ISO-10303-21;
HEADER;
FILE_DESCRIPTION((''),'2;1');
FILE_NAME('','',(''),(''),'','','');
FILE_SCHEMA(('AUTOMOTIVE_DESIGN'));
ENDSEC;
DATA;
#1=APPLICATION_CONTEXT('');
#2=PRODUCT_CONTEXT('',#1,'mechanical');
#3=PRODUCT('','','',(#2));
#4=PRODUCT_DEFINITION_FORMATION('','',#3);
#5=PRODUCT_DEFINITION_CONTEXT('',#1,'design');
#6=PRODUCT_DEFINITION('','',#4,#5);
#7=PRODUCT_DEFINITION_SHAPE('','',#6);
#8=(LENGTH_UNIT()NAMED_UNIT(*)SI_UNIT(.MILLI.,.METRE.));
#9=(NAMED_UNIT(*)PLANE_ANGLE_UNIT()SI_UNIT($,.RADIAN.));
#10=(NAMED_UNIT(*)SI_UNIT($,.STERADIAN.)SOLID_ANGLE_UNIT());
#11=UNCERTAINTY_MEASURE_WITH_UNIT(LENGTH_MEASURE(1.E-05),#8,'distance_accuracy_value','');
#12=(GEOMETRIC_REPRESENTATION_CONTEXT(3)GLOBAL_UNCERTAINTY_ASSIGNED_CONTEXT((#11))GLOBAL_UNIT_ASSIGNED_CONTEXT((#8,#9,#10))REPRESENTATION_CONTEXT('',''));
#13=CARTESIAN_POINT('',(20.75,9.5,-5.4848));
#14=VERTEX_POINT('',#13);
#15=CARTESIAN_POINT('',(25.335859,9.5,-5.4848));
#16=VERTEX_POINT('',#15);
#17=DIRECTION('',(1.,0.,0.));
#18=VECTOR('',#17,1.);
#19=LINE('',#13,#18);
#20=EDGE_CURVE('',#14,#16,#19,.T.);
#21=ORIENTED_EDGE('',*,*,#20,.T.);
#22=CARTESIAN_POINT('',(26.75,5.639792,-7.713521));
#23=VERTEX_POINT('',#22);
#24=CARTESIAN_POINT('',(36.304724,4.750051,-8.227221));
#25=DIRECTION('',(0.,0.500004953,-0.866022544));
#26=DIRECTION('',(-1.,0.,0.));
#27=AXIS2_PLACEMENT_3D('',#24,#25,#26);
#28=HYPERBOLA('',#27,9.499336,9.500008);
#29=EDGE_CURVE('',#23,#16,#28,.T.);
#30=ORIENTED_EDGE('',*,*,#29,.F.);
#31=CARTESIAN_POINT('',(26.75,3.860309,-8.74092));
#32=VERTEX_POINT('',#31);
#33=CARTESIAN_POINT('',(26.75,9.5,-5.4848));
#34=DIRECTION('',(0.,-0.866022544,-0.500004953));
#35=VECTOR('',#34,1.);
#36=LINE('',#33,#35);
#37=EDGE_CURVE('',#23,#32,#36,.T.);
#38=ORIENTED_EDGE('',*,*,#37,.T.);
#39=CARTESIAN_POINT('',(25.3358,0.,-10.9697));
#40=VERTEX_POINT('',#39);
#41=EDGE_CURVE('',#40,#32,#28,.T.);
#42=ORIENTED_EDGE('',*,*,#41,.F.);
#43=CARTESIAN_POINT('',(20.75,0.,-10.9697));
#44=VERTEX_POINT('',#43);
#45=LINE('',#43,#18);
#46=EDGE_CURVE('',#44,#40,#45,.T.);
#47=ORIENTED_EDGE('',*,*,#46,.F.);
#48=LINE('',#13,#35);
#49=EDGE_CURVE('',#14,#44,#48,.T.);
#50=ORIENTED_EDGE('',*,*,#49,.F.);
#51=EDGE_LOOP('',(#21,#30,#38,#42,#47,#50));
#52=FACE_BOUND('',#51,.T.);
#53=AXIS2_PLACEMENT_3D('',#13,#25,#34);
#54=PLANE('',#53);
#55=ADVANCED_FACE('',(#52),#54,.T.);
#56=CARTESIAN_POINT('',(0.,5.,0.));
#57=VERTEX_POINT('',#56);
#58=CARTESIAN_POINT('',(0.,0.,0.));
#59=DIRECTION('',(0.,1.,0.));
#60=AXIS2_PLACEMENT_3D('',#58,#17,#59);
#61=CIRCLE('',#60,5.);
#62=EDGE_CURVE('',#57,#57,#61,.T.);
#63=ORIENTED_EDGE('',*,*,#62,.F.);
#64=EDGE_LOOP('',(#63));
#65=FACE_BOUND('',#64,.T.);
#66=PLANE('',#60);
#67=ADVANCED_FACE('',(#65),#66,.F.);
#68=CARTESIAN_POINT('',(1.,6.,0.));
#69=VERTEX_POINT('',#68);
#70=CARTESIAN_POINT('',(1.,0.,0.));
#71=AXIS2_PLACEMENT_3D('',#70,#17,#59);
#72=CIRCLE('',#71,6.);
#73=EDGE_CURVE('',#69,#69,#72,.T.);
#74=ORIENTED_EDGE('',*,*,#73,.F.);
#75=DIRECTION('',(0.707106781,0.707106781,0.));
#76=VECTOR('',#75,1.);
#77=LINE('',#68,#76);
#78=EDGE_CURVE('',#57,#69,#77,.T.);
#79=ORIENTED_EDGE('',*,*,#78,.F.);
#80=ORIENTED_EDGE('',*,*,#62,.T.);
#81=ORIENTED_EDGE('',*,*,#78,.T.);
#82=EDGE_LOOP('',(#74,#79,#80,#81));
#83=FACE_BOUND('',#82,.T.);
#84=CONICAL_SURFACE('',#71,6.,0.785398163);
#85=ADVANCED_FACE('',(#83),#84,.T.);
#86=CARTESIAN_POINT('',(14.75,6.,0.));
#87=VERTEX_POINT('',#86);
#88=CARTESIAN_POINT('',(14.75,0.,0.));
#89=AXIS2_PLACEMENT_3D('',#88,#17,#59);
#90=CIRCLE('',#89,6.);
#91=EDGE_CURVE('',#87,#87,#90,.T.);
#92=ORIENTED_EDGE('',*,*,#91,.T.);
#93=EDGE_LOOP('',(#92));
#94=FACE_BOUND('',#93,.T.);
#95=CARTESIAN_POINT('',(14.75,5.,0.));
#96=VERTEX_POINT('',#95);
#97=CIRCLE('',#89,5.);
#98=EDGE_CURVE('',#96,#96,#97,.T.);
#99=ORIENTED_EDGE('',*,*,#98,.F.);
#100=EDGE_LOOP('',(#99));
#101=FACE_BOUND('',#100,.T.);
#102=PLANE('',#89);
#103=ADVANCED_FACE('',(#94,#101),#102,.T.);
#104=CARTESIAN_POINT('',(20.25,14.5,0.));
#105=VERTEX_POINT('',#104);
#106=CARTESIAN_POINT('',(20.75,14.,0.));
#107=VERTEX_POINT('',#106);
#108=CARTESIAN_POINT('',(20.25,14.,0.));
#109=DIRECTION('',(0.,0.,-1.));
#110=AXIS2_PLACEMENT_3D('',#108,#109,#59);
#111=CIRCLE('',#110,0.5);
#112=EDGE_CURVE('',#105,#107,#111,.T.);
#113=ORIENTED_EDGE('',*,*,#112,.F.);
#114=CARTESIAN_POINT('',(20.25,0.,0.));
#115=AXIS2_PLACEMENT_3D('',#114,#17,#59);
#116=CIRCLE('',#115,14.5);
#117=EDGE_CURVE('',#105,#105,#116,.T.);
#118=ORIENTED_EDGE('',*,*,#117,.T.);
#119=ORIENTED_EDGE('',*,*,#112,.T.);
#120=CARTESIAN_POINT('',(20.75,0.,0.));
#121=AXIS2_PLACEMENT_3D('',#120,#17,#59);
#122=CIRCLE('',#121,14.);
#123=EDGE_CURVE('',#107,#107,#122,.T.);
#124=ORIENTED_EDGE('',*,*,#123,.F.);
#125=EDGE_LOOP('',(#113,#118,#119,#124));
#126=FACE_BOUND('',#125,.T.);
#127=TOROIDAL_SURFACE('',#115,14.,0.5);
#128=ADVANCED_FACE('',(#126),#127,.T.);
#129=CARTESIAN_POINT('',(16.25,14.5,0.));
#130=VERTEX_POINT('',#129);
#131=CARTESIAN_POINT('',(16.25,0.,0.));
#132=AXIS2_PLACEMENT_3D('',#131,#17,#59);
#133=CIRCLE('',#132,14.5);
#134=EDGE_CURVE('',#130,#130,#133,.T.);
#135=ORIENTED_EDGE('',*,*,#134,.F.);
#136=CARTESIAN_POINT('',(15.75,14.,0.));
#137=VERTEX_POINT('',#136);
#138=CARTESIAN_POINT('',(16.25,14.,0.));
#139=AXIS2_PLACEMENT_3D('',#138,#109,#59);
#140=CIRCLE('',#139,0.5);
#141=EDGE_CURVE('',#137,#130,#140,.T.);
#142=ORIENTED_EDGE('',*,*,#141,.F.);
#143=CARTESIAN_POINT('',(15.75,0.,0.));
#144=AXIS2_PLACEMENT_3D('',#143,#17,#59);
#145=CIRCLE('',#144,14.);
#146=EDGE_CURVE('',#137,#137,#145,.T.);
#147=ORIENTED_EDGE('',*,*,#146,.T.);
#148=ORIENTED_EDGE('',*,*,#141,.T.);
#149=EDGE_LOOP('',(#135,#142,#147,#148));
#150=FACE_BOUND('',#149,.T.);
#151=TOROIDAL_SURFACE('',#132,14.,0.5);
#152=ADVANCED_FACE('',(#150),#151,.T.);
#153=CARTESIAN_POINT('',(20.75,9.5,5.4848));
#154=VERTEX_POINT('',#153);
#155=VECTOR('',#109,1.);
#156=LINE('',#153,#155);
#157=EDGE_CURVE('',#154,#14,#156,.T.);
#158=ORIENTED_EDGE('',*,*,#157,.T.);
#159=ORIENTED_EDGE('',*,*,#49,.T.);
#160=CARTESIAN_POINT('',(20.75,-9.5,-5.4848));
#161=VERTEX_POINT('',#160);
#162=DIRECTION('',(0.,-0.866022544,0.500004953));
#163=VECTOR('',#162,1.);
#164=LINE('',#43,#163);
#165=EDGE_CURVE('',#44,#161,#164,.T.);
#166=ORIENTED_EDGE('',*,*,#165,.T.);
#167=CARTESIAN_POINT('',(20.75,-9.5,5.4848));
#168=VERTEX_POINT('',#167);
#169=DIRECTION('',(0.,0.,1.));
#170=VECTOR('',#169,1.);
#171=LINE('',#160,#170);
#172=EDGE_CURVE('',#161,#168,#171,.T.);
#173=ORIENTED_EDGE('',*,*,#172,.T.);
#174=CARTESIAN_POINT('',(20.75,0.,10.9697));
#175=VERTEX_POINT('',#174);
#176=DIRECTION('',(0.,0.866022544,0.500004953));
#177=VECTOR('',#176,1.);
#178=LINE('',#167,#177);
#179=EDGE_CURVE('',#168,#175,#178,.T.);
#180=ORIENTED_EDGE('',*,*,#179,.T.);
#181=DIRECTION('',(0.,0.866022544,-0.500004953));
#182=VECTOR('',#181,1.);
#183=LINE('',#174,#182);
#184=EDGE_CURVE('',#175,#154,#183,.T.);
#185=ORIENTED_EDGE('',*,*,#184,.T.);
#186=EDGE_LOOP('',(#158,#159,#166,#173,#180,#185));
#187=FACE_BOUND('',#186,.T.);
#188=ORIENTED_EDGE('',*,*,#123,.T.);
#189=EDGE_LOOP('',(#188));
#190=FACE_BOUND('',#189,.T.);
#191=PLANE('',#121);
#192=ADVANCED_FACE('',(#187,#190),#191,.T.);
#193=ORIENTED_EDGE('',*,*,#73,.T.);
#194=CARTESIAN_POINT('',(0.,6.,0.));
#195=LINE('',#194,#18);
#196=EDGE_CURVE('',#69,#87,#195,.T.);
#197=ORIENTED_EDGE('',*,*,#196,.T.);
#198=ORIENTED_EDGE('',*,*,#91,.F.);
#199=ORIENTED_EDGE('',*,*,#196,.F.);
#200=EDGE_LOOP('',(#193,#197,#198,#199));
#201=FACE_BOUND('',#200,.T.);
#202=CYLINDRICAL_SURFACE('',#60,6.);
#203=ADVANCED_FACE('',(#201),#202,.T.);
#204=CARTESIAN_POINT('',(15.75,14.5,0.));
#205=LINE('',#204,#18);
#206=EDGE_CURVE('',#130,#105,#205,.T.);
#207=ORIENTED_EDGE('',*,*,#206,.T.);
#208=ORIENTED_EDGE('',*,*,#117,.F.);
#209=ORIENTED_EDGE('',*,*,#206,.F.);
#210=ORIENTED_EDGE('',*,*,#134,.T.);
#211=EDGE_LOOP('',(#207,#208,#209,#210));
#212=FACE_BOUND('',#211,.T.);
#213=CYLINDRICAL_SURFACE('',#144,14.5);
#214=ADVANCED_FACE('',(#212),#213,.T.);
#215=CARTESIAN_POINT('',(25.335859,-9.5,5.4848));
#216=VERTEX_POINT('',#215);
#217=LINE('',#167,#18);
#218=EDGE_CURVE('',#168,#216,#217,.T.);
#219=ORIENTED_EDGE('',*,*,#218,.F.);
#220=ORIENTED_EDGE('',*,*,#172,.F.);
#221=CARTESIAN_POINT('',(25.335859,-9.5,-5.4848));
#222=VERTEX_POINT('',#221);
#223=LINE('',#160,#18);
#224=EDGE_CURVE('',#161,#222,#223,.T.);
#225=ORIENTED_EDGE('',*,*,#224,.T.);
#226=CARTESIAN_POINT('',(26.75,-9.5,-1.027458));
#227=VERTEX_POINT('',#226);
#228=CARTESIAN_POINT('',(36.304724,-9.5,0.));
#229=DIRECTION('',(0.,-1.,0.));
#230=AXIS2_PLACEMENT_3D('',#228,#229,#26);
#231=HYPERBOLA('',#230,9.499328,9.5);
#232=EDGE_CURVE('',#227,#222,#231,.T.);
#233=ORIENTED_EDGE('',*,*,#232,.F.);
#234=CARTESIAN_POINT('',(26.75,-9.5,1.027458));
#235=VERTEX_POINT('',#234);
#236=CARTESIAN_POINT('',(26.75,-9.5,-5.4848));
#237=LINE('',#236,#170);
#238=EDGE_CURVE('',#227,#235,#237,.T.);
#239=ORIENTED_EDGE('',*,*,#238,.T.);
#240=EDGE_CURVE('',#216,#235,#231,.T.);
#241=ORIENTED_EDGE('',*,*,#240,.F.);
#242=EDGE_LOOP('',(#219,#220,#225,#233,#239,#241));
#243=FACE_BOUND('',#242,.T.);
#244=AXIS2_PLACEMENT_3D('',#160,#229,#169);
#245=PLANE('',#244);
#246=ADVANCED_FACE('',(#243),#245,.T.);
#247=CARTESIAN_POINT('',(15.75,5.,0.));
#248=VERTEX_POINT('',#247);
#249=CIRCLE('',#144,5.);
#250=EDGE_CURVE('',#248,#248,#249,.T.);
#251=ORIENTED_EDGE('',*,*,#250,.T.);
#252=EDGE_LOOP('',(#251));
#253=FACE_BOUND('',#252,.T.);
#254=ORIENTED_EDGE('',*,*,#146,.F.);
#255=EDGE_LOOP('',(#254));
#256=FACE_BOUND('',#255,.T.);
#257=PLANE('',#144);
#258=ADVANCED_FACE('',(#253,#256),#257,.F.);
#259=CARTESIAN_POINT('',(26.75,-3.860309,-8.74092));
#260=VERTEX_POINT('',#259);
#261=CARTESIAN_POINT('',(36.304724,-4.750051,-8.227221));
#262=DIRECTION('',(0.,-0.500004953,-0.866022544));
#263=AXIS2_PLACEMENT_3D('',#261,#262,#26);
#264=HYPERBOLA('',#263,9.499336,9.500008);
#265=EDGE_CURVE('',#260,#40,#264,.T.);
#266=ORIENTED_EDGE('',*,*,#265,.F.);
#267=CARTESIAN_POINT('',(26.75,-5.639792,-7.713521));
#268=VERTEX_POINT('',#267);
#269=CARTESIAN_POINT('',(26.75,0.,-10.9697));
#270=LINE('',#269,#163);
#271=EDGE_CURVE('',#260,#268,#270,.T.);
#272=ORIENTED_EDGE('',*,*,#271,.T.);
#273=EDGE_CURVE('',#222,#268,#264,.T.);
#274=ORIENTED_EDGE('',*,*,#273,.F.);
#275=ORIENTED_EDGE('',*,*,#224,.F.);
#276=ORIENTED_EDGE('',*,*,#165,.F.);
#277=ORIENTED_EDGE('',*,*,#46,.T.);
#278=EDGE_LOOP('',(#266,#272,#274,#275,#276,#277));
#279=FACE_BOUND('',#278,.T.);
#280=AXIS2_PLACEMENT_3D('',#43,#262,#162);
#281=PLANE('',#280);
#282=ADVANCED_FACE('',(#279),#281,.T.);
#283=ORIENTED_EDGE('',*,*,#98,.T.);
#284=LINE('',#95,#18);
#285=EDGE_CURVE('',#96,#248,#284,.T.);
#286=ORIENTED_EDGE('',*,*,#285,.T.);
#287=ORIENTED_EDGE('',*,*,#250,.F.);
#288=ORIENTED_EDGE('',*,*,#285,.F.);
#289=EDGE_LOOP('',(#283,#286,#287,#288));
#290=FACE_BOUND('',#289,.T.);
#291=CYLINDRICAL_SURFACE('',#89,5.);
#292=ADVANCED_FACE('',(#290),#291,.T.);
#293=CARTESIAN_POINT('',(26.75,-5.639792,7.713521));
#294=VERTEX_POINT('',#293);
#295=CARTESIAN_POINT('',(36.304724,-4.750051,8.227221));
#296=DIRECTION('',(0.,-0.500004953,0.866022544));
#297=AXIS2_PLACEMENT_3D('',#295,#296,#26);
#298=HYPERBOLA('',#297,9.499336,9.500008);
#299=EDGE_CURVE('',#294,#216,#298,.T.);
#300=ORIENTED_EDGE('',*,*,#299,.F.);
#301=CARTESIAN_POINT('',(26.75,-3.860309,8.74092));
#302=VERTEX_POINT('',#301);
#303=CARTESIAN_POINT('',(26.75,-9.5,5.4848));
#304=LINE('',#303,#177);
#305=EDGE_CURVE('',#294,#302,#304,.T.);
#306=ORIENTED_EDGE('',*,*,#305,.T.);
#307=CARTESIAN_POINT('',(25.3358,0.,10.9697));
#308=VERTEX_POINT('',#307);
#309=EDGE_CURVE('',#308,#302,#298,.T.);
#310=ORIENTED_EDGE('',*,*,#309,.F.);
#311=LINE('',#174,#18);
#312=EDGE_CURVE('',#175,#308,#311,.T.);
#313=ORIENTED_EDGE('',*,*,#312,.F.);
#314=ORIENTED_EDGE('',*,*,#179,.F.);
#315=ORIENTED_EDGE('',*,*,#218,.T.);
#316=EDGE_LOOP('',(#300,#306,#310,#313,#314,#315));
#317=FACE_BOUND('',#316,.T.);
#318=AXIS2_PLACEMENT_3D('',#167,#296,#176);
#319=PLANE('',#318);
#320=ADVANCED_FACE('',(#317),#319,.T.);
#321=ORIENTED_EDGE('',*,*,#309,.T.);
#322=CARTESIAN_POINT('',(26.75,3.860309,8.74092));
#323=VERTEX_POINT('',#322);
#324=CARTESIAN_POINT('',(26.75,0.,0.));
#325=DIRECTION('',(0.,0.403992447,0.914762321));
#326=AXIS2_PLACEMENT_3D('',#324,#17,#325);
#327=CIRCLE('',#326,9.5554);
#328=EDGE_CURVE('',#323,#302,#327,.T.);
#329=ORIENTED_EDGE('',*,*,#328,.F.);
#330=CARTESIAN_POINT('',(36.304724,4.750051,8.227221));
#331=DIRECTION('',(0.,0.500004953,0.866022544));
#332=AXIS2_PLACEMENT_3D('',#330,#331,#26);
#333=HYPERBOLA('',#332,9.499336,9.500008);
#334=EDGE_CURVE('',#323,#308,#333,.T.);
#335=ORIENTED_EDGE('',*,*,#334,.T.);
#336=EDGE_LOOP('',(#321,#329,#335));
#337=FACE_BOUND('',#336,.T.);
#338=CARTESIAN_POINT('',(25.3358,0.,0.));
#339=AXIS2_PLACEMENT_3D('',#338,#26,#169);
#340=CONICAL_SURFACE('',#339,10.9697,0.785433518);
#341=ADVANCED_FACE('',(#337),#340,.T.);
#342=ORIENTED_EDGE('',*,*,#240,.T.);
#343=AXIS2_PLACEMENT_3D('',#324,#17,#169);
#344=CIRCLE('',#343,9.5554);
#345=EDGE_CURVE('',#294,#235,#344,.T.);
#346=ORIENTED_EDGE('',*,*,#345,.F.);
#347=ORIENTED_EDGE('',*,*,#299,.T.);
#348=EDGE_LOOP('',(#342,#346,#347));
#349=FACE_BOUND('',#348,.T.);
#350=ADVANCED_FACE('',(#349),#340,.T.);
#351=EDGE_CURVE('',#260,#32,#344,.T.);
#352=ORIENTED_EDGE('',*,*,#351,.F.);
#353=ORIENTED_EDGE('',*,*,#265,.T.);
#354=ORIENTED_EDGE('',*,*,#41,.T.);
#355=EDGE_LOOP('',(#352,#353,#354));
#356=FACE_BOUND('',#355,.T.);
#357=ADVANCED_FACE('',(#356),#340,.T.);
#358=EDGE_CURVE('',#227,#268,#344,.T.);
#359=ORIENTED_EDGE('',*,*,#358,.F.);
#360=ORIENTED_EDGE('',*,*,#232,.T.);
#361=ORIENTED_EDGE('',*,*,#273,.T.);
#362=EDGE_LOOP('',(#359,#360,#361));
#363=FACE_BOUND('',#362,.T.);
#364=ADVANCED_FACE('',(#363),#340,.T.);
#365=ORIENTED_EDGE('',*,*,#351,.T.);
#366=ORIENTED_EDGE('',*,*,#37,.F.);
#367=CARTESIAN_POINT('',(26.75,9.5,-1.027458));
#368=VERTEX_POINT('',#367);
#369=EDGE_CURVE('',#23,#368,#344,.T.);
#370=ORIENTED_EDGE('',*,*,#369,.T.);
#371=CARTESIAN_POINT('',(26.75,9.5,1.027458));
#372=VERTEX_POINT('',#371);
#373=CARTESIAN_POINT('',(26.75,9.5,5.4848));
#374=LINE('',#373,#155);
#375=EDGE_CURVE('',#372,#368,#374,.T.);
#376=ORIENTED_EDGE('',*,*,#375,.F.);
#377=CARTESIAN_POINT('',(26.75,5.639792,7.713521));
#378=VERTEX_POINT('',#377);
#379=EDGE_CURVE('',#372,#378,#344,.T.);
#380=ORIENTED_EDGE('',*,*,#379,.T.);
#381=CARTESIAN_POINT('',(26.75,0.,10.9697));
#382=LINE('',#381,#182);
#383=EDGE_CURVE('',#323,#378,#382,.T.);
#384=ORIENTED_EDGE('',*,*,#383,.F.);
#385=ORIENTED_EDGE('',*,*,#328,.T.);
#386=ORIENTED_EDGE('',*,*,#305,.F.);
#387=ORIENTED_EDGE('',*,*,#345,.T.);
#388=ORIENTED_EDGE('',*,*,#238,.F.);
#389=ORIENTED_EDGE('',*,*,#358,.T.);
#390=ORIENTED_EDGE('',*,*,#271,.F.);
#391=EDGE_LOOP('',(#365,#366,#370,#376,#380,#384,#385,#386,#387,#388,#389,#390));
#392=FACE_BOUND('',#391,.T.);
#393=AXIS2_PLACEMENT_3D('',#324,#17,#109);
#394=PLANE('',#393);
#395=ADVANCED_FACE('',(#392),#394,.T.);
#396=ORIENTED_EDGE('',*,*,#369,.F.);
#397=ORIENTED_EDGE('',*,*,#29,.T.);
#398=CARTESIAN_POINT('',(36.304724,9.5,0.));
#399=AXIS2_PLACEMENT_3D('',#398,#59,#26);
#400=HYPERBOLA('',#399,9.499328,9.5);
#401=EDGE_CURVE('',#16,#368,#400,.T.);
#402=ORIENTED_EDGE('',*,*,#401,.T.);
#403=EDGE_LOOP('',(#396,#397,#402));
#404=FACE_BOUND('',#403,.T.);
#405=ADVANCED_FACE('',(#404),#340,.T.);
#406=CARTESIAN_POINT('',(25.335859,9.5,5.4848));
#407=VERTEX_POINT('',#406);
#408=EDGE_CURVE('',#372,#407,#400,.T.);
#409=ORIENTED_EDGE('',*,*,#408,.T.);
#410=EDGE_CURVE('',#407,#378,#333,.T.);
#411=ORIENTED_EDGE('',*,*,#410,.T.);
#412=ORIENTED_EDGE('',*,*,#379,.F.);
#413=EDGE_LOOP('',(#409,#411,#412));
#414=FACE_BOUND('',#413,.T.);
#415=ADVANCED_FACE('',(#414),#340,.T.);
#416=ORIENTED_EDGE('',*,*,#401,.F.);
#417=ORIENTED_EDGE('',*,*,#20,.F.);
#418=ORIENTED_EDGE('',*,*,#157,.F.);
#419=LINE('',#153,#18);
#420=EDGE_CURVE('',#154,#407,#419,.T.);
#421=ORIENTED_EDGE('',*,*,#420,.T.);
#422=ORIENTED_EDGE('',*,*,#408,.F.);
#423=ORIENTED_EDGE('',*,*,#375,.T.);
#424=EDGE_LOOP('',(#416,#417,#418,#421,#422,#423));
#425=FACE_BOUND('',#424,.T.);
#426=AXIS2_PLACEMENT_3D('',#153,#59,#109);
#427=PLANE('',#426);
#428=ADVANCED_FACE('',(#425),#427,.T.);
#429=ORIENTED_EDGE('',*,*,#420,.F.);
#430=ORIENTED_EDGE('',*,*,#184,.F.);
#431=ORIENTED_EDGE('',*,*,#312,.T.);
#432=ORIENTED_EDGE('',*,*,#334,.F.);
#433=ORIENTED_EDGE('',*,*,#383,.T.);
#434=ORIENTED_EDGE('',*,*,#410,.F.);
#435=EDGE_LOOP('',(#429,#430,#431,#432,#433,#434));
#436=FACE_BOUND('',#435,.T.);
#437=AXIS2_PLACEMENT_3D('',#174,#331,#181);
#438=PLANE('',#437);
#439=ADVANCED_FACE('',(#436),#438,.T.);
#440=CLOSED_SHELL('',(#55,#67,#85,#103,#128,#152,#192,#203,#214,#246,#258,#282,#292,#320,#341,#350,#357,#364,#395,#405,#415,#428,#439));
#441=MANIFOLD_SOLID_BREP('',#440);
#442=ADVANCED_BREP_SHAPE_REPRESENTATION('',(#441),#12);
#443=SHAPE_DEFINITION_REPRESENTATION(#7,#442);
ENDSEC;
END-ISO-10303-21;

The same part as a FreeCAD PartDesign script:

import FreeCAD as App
import Part
import Sketcher

V = App.Vector
Q = App.Units.Quantity


def edges_at(feature, points):
    """Names of the edges that pass closest to the given points."""
    edges = feature.Shape.Edges
    near = lambda p: min(range(len(edges)), key=lambda i: edges[i].distToShape(Part.Vertex(*p))[0])
    return sorted({f"Edge{near(p) + 1}" for p in points})


def add_polygon(sketch, points):
    """Adds a closed chain of lines whose ends are joined by coincident constraints."""
    first, n = sketch.GeometryCount, len(points)
    for a, b in zip(points, points[1:] + points[:1]):
        sketch.addGeometry(Part.LineSegment(App.Vector(*a, 0), App.Vector(*b, 0)), False)
    for i in range(n):
        sketch.addConstraint(Sketcher.Constraint("Coincident", first + i, 2, first + (i + 1) % n, 1))

doc = App.newDocument("Part")
params = doc.addObject("Spreadsheet::Sheet", "Params")
for row, (alias, value) in enumerate([
    ("sketch1_width", "5 mm"),
    ("sketch1_width2", "1 mm"),
    ("sketch1_width3", "14.75 mm"),
    ("sketch1_height", "14.5 mm"),
    ("revolution_angle", "360 deg"),
    ("chamfer_size", "1 mm"),
    ("fillet_radius", "0.5 mm"),
    ("pad1_length", "6 mm"),
    ("sketch3_length", "2 mm"),
    ("groove_angle", "360 deg"),
], start=1):
    params.set(f"A{row}", alias)
    params.set(f"B{row}", "=" + value)
    params.setAlias(f"B{row}", alias)

body = doc.addObject("PartDesign::Body", "Body")

# Sketch on XY plane
sketch1 = doc.addObject("Sketcher::SketchObject", "Sketch")
body.addObject(sketch1)
sketch1.AttachmentSupport = (doc.XY_Plane, [""])
sketch1.MapMode = "FlatFace"
add_polygon(sketch1, [(0, 6), (0, 0), (20.8, 0), (20.8, 14.5), (15.8, 14.5), (15.8, 5), (14.8, 5), (14.8, 6)])  # lines 0-7
sketch1.addConstraint([
    Sketcher.Constraint("Vertical", 0),
    Sketcher.Constraint("Horizontal", 1),
    Sketcher.Constraint("Vertical", 2),
    Sketcher.Constraint("Horizontal", 3),
    Sketcher.Constraint("Vertical", 4),
    Sketcher.Constraint("Horizontal", 5),
    Sketcher.Constraint("Vertical", 6),
    Sketcher.Constraint("Horizontal", 7),
    Sketcher.Constraint("Coincident", 0, 2, -1, 1),
    Sketcher.Constraint("Equal", 5, 6),
    Sketcher.Constraint("DistanceX", 3, 2, 3, 1, Q("5 mm")),
    Sketcher.Constraint("DistanceX", 5, 2, 5, 1, Q("1 mm")),
    Sketcher.Constraint("DistanceY", -1, 1, 4, 2, Q("5 mm")),
    Sketcher.Constraint("DistanceX", 7, 2, 7, 1, Q("14.75 mm")),
    Sketcher.Constraint("DistanceY", 2, 1, 2, 2, Q("14.5 mm")),
])
sketch1.setExpression("Constraints[18]", "Params.sketch1_width")
sketch1.setExpression("Constraints[19]", "Params.sketch1_width2")
sketch1.setExpression("Constraints[21]", "Params.sketch1_width3")
sketch1.setExpression("Constraints[22]", "Params.sketch1_height")
revolution = doc.addObject("PartDesign::Revolution", "Revolution")
body.addObject(revolution)
revolution.Profile = sketch1
revolution.ReferenceAxis = (sketch1, ["H_Axis"])
revolution.setExpression("Angle", "Params.revolution_angle")
doc.recompute()

chamfer = doc.addObject("PartDesign::Chamfer", "Chamfer")
body.addObject(chamfer)
chamfer.Base = (revolution, edges_at(revolution, [(0, -6, 0)]))
chamfer.setExpression("Size", "Params.chamfer_size")
doc.recompute()

fillet = doc.addObject("PartDesign::Fillet", "Fillet")
body.addObject(fillet)
fillet.Base = (chamfer, edges_at(chamfer, [(15.75, -14.5, 0), (20.75, -14.5, 0)]))
fillet.setExpression("Radius", "Params.fillet_radius")

# Sketch on YZ plane
sketch2 = doc.addObject("Sketcher::SketchObject", "Sketch001")
body.addObject(sketch2)
sketch2.AttachmentSupport = (doc.YZ_Plane, [""])
sketch2.MapMode = "FlatFace"
sketch2.AttachmentOffset = App.Placement(V(0, 0, 20.75), App.Rotation())
add_polygon(sketch2, [(0, -11), (10, -5), (10, 5), (0, 11), (-10, 5), (-10, -5)])  # lines 0-5
sketch2.addConstraint([
    Sketcher.Constraint("Vertical", 1),
    Sketcher.Constraint("Vertical", 4),
    Sketcher.Constraint("Symmetric", 0, 2, 3, 2, -1, 1),
    Sketcher.Constraint("Symmetric", 2, 2, 5, 2, -1, 1),
    Sketcher.Constraint("PointOnObject", 2, 2, -2),
    Sketcher.Constraint("Parallel", 2, 5),
    Sketcher.Constraint("Horizontal", 1, 2, 3, 2),
    Sketcher.Constraint("DistanceX", 3, 2, 1, 2, Q("19 mm")),
    Sketcher.Constraint("Angle", 0, Q("30.0003 deg")),
    Sketcher.Constraint("DistanceY", 1, 1, 1, 2, Q("10.9696 mm")),
])
pad1 = doc.addObject("PartDesign::Pad", "Pad")
body.addObject(pad1)
pad1.Profile = sketch2
pad1.setExpression("Length", "Params.pad1_length")

# Sketch on XZ plane
sketch3 = doc.addObject("Sketcher::SketchObject", "Sketch002")
body.addObject(sketch3)
sketch3.AttachmentSupport = (doc.XZ_Plane, [""])
sketch3.MapMode = "FlatFace"
add_polygon(sketch3, [(26.8, 9.6), (25.3, 11), (26.8, 11)])  # lines 0-2
sketch3.addConstraint([
    Sketcher.Constraint("Horizontal", 1),
    Sketcher.Constraint("Vertical", 2),
    Sketcher.Constraint("Equal", 1, 2),
    Sketcher.Constraint("Distance", 0, Q("2 mm")),
    Sketcher.Constraint("DistanceX", -1, 1, 1, 2, Q("26.75 mm")),
    Sketcher.Constraint("DistanceY", -1, 1, 0, 2, Q("10.9697 mm")),
])
sketch3.setExpression("Constraints[6]", "Params.sketch3_length")
groove = doc.addObject("PartDesign::Groove", "Groove")
body.addObject(groove)
groove.Profile = sketch3
groove.ReferenceAxis = (sketch3, ["H_Axis"])
groove.setExpression("Angle", "Params.groove_angle")

doc.recompute()
